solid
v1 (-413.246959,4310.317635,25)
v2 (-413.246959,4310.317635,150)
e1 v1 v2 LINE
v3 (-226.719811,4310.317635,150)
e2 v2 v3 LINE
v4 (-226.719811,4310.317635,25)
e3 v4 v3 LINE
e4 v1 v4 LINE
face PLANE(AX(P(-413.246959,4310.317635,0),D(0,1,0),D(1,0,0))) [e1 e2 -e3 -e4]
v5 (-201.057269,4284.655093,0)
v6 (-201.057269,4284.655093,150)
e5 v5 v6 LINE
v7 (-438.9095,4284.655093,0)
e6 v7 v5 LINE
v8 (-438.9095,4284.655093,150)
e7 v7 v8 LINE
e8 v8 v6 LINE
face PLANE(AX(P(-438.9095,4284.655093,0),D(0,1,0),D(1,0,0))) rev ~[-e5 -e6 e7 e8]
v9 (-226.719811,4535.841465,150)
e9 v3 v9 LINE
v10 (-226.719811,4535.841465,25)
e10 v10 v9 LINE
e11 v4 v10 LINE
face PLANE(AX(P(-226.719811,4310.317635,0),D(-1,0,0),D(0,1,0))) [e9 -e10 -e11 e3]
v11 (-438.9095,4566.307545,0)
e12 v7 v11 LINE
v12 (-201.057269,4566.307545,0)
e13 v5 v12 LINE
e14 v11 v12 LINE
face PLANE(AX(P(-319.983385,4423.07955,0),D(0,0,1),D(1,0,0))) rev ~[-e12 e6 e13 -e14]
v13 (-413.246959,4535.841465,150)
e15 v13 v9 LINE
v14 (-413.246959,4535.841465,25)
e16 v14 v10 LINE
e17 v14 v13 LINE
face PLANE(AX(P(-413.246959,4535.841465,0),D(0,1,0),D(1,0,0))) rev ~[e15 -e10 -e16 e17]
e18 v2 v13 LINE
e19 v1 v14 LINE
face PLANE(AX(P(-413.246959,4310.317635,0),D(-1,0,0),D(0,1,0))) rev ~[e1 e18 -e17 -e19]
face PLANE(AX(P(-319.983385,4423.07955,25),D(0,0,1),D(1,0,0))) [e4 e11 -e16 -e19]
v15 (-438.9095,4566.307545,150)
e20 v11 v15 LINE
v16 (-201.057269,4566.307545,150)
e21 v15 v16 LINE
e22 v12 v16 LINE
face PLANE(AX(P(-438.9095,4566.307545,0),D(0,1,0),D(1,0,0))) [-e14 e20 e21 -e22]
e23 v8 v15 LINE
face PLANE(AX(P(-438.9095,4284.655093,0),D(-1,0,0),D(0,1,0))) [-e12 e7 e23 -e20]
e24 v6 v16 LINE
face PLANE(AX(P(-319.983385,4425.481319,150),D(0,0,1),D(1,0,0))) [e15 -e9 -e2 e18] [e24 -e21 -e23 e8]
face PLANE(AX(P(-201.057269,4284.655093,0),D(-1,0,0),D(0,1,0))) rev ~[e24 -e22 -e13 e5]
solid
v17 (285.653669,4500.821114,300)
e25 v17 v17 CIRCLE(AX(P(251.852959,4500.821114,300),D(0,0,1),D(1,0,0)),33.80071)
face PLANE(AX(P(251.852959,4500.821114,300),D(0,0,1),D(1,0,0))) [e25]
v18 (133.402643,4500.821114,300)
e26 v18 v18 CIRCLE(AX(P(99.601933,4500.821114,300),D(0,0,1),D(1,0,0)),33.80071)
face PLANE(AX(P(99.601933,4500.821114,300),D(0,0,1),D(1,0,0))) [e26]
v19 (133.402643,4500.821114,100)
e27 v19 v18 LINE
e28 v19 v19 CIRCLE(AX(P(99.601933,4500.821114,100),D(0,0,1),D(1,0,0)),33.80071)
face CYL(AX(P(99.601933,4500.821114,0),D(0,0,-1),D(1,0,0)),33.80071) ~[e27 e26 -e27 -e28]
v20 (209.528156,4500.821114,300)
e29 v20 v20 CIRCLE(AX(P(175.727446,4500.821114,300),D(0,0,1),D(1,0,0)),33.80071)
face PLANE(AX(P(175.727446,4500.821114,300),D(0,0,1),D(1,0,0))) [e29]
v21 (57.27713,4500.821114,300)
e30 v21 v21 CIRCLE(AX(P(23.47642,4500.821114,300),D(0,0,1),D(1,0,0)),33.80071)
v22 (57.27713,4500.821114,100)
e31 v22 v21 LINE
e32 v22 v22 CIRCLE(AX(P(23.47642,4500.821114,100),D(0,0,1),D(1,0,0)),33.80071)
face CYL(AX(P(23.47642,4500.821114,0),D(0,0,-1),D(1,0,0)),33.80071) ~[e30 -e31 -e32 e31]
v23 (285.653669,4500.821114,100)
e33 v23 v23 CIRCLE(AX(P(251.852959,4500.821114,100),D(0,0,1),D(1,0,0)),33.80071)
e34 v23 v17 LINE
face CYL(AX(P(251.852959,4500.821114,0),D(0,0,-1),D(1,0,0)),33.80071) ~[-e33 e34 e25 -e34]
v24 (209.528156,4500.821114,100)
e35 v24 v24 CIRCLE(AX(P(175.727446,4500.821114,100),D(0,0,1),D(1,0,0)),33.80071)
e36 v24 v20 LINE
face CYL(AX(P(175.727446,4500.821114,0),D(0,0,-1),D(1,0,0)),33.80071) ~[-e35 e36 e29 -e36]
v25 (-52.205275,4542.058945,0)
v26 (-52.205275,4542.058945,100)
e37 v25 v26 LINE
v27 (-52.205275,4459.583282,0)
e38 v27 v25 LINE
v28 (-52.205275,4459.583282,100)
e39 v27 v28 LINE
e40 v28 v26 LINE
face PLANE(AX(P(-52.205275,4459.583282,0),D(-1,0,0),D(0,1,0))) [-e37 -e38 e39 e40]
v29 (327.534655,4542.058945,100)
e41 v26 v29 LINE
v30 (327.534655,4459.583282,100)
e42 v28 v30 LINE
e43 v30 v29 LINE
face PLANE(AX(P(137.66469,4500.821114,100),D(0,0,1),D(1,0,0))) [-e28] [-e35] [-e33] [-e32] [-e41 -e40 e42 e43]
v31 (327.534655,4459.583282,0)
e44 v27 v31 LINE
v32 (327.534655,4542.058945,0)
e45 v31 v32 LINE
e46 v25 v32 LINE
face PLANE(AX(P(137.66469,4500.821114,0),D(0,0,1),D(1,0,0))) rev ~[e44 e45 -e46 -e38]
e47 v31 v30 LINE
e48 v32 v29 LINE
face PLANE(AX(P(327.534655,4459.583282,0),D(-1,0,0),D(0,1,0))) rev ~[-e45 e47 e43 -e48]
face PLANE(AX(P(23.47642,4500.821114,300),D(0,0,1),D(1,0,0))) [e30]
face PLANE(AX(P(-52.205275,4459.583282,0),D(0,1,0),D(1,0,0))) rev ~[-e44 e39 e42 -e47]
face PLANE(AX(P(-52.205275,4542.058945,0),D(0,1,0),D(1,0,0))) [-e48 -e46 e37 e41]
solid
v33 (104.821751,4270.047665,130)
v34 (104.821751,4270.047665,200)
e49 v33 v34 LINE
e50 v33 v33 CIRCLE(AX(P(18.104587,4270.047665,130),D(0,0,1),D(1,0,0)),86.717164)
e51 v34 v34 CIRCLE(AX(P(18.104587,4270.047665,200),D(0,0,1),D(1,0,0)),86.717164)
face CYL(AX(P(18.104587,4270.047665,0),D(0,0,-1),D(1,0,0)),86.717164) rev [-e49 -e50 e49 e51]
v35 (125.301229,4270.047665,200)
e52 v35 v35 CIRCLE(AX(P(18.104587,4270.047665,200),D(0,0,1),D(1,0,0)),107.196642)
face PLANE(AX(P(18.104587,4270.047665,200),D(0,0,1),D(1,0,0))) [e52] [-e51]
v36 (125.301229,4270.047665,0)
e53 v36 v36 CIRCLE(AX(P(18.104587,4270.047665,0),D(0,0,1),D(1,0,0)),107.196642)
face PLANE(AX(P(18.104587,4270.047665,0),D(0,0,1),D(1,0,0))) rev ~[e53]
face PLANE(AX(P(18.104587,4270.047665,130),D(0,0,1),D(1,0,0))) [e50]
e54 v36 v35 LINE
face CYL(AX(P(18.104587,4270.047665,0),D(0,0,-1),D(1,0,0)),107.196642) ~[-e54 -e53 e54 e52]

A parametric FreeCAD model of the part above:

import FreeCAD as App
import Part
import Sketcher
from FreeCAD import Vector

doc = App.newDocument("Part")
body = doc.addObject("PartDesign::Body", "Body")

# Sketch on XY plane
sketch1 = body.newObject("Sketcher::SketchObject", "Sketch")
sketch1.AttachmentSupport = (doc.getObject("XY_Plane"), [""])
sketch1.MapMode = "FlatFace"
sketch1.addGeometry([
    Part.LineSegment(Vector(-52, 4542, 0), Vector(-52, 4460, 0)),  # 0
    Part.LineSegment(Vector(-52, 4460, 0), Vector(328, 4460, 0)),  # 1
    Part.LineSegment(Vector(328, 4460, 0), Vector(328, 4542, 0)),  # 2
    Part.LineSegment(Vector(328, 4542, 0), Vector(-52, 4542, 0)),  # 3
    Part.Circle(Vector(23, 4501, 0), Vector(0, 0, 1), 34),  # 4
    Part.Circle(Vector(100, 4501, 0), Vector(0, 0, 1), 34),  # 5
    Part.Circle(Vector(176, 4501, 0), Vector(0, 0, 1), 34),  # 6
    Part.Circle(Vector(252, 4501, 0), Vector(0, 0, 1), 34),  # 7
], False)
sketch1.addConstraint([
    Sketcher.Constraint("Coincident", 0, 2, 1, 1),
    Sketcher.Constraint("Coincident", 1, 2, 2, 1),
    Sketcher.Constraint("Coincident", 2, 2, 3, 1),
    Sketcher.Constraint("Coincident", 3, 2, 0, 1),
    Sketcher.Constraint("Vertical", 0),
    Sketcher.Constraint("Horizontal", 1),
    Sketcher.Constraint("Vertical", 2),
    Sketcher.Constraint("Horizontal", 3),
    Sketcher.Constraint("Equal", 4, 5),
    Sketcher.Constraint("Equal", 5, 6),
    Sketcher.Constraint("Equal", 6, 7),
    Sketcher.Constraint("Horizontal", 4, 3, 5, 3),
    Sketcher.Constraint("Horizontal", 5, 3, 6, 3),
    Sketcher.Constraint("Horizontal", 6, 3, 7, 3),
    Sketcher.Constraint("Diameter", 4, 67.60142),
    Sketcher.Constraint("DistanceX", 1, 1, 1, 2, 379.739931),
    Sketcher.Constraint("DistanceY", 0, 2, 0, 1, 82.475663),
    Sketcher.Constraint("DistanceX", -1, 1, 4, 3, 23.47642),
    Sketcher.Constraint("DistanceX", -1, 1, 7, 3, 251.852959),
    Sketcher.Constraint("DistanceY", 0, 2, 4, 3, 41.237832),
    Sketcher.Constraint("DistanceX", 0, 2, 5, 3, 151.807209),
    Sketcher.Constraint("DistanceX", 0, 2, 6, 3, 227.932721),
    Sketcher.Constraint("DistanceY", -1, 1, 4, 3, 4500.821114),
    Sketcher.Constraint("DistanceX", -1, 1, 5, 3, 99.601933),
])
pad1 = body.newObject("PartDesign::Pad", "Pad")
pad1.Profile = sketch1
pad1.Length = 100

# Sketch on XY plane
sketch2 = body.newObject("Sketcher::SketchObject", "Sketch001")
sketch2.AttachmentSupport = (doc.getObject("XY_Plane"), [""])
sketch2.MapMode = "FlatFace"
sketch2.addGeometry([
    Part.Circle(Vector(252, 4501, 0), Vector(0, 0, 1), 34),
    Part.Circle(Vector(176, 4501, 0), Vector(0, 0, 1), 34),
    Part.Circle(Vector(100, 4501, 0), Vector(0, 0, 1), 34),
    Part.Circle(Vector(23, 4501, 0), Vector(0, 0, 1), 34),
], False)
sketch2.addConstraint([
    Sketcher.Constraint("Equal", 0, 1),
    Sketcher.Constraint("Equal", 1, 2),
    Sketcher.Constraint("Equal", 2, 3),
    Sketcher.Constraint("Horizontal", 0, 3, 1, 3),
    Sketcher.Constraint("Horizontal", 1, 3, 2, 3),
    Sketcher.Constraint("Horizontal", 2, 3, 3, 3),
    Sketcher.Constraint("Diameter", 0, 67.60142),
    Sketcher.Constraint("DistanceX", -1, 1, 0, 3, 251.852959),
    Sketcher.Constraint("DistanceX", -1, 1, 3, 3, 23.47642),
    Sketcher.Constraint("DistanceY", -1, 1, 0, 3, 4500.821114),
    Sketcher.Constraint("DistanceX", -1, 1, 1, 3, 175.727446),
    Sketcher.Constraint("DistanceX", -1, 1, 2, 3, 99.601933),
])
pad2 = body.newObject("PartDesign::Pad", "Pad001")
pad2.Profile = sketch2
pad2.Length = 300
body2 = doc.addObject("PartDesign::Body", "Body001")

# Sketch on XY plane
sketch3 = body2.newObject("Sketcher::SketchObject", "Sketch002")
sketch3.AttachmentSupport = (doc.getObject("XY_Plane001"), [""])
sketch3.MapMode = "FlatFace"
sketch3.addGeometry([
    Part.LineSegment(Vector(-439, 4566, 0), Vector(-439, 4285, 0)),  # 0
    Part.LineSegment(Vector(-439, 4285, 0), Vector(-201, 4285, 0)),  # 1
    Part.LineSegment(Vector(-201, 4285, 0), Vector(-201, 4566, 0)),  # 2
    Part.LineSegment(Vector(-201, 4566, 0), Vector(-439, 4566, 0)),  # 3
    Part.LineSegment(Vector(-227, 4310, 0), Vector(-413, 4310, 0)),  # 4
    Part.LineSegment(Vector(-413, 4310, 0), Vector(-413, 4536, 0)),  # 5
    Part.LineSegment(Vector(-413, 4536, 0), Vector(-227, 4536, 0)),  # 6
    Part.LineSegment(Vector(-227, 4536, 0), Vector(-227, 4310, 0)),  # 7
], False)
sketch3.addConstraint([
    Sketcher.Constraint("Coincident", 0, 2, 1, 1),
    Sketcher.Constraint("Coincident", 1, 2, 2, 1),
    Sketcher.Constraint("Coincident", 2, 2, 3, 1),
    Sketcher.Constraint("Coincident", 3, 2, 0, 1),
    Sketcher.Constraint("Coincident", 4, 2, 5, 1),
    Sketcher.Constraint("Coincident", 5, 2, 6, 1),
    Sketcher.Constraint("Coincident", 6, 2, 7, 1),
    Sketcher.Constraint("Coincident", 7, 2, 4, 1),
    Sketcher.Constraint("Vertical", 0),
    Sketcher.Constraint("Horizontal", 1),
    Sketcher.Constraint("Vertical", 2),
    Sketcher.Constraint("Horizontal", 3),
    Sketcher.Constraint("Horizontal", 4),
    Sketcher.Constraint("Vertical", 5),
    Sketcher.Constraint("Horizontal", 6),
    Sketcher.Constraint("Vertical", 7),
    Sketcher.Constraint("DistanceX", 1, 1, 1, 2, 237.852231),
    Sketcher.Constraint("DistanceY", 0, 2, 0, 1, 281.652451),
    Sketcher.Constraint("DistanceY", 5, 1, 5, 2, 225.523829),
    Sketcher.Constraint("DistanceX", 0, 2, -1, 1, 438.9095),
    Sketcher.Constraint("DistanceX", 4, 2, 4, 1, 186.527147),
    Sketcher.Constraint("DistanceX", 4, 2, -1, 1, 413.246959),
    Sketcher.Constraint("DistanceY", 4, 2, 3, 2, 255.989909),
    Sketcher.Constraint("DistanceY", -1, 1, 0, 2, 4284.655093),
])
pad3 = body2.newObject("PartDesign::Pad", "Pad002")
pad3.Profile = sketch3
pad3.Length = 150

# Sketch on XY plane
sketch4 = body2.newObject("Sketcher::SketchObject", "Sketch003")
sketch4.AttachmentSupport = (doc.getObject("XY_Plane001"), [""])
sketch4.MapMode = "FlatFace"
sketch4.addGeometry([
    Part.LineSegment(Vector(-413, 4536, 0), Vector(-413, 4310, 0)),
    Part.LineSegment(Vector(-413, 4310, 0), Vector(-227, 4310, 0)),
    Part.LineSegment(Vector(-227, 4310, 0), Vector(-227, 4536, 0)),
    Part.LineSegment(Vector(-227, 4536, 0), Vector(-413, 4536, 0)),
], False)
sketch4.addConstraint([
    Sketcher.Constraint("Coincident", 0, 2, 1, 1),
    Sketcher.Constraint("Coincident", 1, 2, 2, 1),
    Sketcher.Constraint("Coincident", 2, 2, 3, 1),
    Sketcher.Constraint("Coincident", 3, 2, 0, 1),
    Sketcher.Constraint("Vertical", 0),
    Sketcher.Constraint("Horizontal", 1),
    Sketcher.Constraint("Vertical", 2),
    Sketcher.Constraint("Horizontal", 3),
    Sketcher.Constraint("DistanceY", 0, 2, 0, 1, 225.523829),
    Sketcher.Constraint("DistanceX", 1, 1, 1, 2, 186.527147),
    Sketcher.Constraint("DistanceX", 0, 2, -1, 1, 413.246959),
    Sketcher.Constraint("DistanceY", -1, 1, 0, 2, 4310.317635),
])
pad4 = body2.newObject("PartDesign::Pad", "Pad003")
pad4.Profile = sketch4
pad4.Length = 25
body3 = doc.addObject("PartDesign::Body", "Body002")

# Sketch on XY plane
sketch5 = body3.newObject("Sketcher::SketchObject", "Sketch004")
sketch5.AttachmentSupport = (doc.getObject("XY_Plane002"), [""])
sketch5.MapMode = "FlatFace"
sketch5.addGeometry([
    Part.Circle(Vector(18, 4270, 0), Vector(0, 0, 1), 107),
    Part.Circle(Vector(18, 4270, 0), Vector(0, 0, 1), 87),
], False)
sketch5.addConstraint([
    Sketcher.Constraint("Coincident", 1, 3, 0, 3),
    Sketcher.Constraint("Diameter", 1, 173.434328),
    Sketcher.Constraint("Diameter", 0, 214.393284),
    Sketcher.Constraint("DistanceX", -1, 1, 0, 3, 18.104587),
    Sketcher.Constraint("DistanceY", -1, 1, 0, 3, 4270.047665),
])
pad5 = body3.newObject("PartDesign::Pad", "Pad004")
pad5.Profile = sketch5
pad5.Length = 200

# Sketch on XY plane
sketch6 = body3.newObject("Sketcher::SketchObject", "Sketch005")
sketch6.AttachmentSupport = (doc.getObject("XY_Plane002"), [""])
sketch6.MapMode = "FlatFace"
sketch6.addGeometry(Part.Circle(Vector(18, 4270, 0), Vector(0, 0, 1), 87), False)
sketch6.addConstraint([
    Sketcher.Constraint("Diameter", 0, 173.434328),
    Sketcher.Constraint("DistanceX", -1, 1, 0, 3, 18.104587),
    Sketcher.Constraint("DistanceY", -1, 1, 0, 3, 4270.047665),
])
pad6 = body3.newObject("PartDesign::Pad", "Pad005")
pad6.Profile = sketch6
pad6.Length = 130

doc.recompute()
